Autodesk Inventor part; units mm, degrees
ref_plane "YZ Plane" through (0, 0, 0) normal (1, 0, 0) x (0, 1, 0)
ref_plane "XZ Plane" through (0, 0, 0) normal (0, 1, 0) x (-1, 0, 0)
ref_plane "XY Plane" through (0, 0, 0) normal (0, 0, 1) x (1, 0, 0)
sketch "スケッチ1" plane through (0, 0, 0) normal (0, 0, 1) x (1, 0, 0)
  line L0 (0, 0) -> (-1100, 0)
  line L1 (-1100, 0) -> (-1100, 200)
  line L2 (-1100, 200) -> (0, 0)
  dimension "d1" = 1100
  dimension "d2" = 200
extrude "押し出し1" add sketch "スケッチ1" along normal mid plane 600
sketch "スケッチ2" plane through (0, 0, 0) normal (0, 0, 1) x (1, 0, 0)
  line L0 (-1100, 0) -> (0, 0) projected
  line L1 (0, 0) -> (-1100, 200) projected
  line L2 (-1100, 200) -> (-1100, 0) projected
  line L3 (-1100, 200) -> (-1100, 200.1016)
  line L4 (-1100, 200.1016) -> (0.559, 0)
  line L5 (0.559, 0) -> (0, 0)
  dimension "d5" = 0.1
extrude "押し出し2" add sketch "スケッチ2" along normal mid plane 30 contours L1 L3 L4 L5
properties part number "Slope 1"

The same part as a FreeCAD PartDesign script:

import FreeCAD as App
import Part
import Sketcher
Q = App.Units.Quantity

doc = App.newDocument("Part")
body = doc.addObject("PartDesign::Body", "Body")

# Sketch on XY plane
sketch1 = body.newObject("Sketcher::SketchObject", "Sketch")
sketch1.AttachmentSupport = (doc.getObject("XY_Plane"), [""])
sketch1.MapMode = "FlatFace"
sketch1.addGeometry([
    Part.LineSegment(App.Vector(-1100, 0, 0), App.Vector(0, 0, 0)),
    Part.LineSegment(App.Vector(0, 0, 0), App.Vector(-1100, 200, 0)),
    Part.LineSegment(App.Vector(-1100, 200, 0), App.Vector(-1100, 0, 0)),
], False)
sketch1.addConstraint([
    Sketcher.Constraint("Coincident", 0, 2, 1, 1),
    Sketcher.Constraint("Coincident", 1, 2, 2, 1),
    Sketcher.Constraint("Coincident", 2, 2, 0, 1),
    Sketcher.Constraint("Horizontal", 0),
    Sketcher.Constraint("Vertical", 2),
    Sketcher.Constraint("Coincident", 0, 2, -1, 1),
    Sketcher.Constraint("DistanceX", 0, 1, 0, 2, Q("1100 mm")),
    Sketcher.Constraint("DistanceY", 2, 2, 2, 1, Q("200 mm")),
])
pad1 = body.newObject("PartDesign::Pad", "Pad")
pad1.Profile = sketch1
pad1.Length = 600
pad1.Midplane = True

# Sketch on XY plane
sketch2 = body.newObject("Sketcher::SketchObject", "Sketch001")
sketch2.AttachmentSupport = (doc.getObject("XY_Plane"), [""])
sketch2.MapMode = "FlatFace"
sketch2.addGeometry([
    Part.LineSegment(App.Vector(-1100, 200, 0), App.Vector(0, 0, 0)),
    Part.LineSegment(App.Vector(0, 0, 0), App.Vector(0.559, 0, 0)),
    Part.LineSegment(App.Vector(0.559, 0, 0), App.Vector(-1100, 200.1016, 0)),
    Part.LineSegment(App.Vector(-1100, 200.1016, 0), App.Vector(-1100, 200, 0)),
], False)
sketch2.addConstraint([
    Sketcher.Constraint("Coincident", 0, 2, 1, 1),
    Sketcher.Constraint("Coincident", 1, 2, 2, 1),
    Sketcher.Constraint("Coincident", 2, 2, 3, 1),
    Sketcher.Constraint("Coincident", 3, 2, 0, 1),
    Sketcher.Constraint("Horizontal", 1),
    Sketcher.Constraint("Vertical", 3),
    Sketcher.Constraint("Coincident", 0, 2, -1, 1),
    Sketcher.Constraint("Parallel", 0, 2),
    Sketcher.Constraint("DistanceX", 2, 2, -1, 1, Q("1100 mm")),
    Sketcher.Constraint("DistanceY", -1, 1, 3, 2, Q("200 mm")),
    Sketcher.Constraint("DistanceX", 1, 1, 1, 2, Q("0.559 mm")),
])
pad2 = body.newObject("PartDesign::Pad", "Pad001")
pad2.Profile = sketch2
pad2.Length = 30
pad2.Midplane = True

doc.recompute()
